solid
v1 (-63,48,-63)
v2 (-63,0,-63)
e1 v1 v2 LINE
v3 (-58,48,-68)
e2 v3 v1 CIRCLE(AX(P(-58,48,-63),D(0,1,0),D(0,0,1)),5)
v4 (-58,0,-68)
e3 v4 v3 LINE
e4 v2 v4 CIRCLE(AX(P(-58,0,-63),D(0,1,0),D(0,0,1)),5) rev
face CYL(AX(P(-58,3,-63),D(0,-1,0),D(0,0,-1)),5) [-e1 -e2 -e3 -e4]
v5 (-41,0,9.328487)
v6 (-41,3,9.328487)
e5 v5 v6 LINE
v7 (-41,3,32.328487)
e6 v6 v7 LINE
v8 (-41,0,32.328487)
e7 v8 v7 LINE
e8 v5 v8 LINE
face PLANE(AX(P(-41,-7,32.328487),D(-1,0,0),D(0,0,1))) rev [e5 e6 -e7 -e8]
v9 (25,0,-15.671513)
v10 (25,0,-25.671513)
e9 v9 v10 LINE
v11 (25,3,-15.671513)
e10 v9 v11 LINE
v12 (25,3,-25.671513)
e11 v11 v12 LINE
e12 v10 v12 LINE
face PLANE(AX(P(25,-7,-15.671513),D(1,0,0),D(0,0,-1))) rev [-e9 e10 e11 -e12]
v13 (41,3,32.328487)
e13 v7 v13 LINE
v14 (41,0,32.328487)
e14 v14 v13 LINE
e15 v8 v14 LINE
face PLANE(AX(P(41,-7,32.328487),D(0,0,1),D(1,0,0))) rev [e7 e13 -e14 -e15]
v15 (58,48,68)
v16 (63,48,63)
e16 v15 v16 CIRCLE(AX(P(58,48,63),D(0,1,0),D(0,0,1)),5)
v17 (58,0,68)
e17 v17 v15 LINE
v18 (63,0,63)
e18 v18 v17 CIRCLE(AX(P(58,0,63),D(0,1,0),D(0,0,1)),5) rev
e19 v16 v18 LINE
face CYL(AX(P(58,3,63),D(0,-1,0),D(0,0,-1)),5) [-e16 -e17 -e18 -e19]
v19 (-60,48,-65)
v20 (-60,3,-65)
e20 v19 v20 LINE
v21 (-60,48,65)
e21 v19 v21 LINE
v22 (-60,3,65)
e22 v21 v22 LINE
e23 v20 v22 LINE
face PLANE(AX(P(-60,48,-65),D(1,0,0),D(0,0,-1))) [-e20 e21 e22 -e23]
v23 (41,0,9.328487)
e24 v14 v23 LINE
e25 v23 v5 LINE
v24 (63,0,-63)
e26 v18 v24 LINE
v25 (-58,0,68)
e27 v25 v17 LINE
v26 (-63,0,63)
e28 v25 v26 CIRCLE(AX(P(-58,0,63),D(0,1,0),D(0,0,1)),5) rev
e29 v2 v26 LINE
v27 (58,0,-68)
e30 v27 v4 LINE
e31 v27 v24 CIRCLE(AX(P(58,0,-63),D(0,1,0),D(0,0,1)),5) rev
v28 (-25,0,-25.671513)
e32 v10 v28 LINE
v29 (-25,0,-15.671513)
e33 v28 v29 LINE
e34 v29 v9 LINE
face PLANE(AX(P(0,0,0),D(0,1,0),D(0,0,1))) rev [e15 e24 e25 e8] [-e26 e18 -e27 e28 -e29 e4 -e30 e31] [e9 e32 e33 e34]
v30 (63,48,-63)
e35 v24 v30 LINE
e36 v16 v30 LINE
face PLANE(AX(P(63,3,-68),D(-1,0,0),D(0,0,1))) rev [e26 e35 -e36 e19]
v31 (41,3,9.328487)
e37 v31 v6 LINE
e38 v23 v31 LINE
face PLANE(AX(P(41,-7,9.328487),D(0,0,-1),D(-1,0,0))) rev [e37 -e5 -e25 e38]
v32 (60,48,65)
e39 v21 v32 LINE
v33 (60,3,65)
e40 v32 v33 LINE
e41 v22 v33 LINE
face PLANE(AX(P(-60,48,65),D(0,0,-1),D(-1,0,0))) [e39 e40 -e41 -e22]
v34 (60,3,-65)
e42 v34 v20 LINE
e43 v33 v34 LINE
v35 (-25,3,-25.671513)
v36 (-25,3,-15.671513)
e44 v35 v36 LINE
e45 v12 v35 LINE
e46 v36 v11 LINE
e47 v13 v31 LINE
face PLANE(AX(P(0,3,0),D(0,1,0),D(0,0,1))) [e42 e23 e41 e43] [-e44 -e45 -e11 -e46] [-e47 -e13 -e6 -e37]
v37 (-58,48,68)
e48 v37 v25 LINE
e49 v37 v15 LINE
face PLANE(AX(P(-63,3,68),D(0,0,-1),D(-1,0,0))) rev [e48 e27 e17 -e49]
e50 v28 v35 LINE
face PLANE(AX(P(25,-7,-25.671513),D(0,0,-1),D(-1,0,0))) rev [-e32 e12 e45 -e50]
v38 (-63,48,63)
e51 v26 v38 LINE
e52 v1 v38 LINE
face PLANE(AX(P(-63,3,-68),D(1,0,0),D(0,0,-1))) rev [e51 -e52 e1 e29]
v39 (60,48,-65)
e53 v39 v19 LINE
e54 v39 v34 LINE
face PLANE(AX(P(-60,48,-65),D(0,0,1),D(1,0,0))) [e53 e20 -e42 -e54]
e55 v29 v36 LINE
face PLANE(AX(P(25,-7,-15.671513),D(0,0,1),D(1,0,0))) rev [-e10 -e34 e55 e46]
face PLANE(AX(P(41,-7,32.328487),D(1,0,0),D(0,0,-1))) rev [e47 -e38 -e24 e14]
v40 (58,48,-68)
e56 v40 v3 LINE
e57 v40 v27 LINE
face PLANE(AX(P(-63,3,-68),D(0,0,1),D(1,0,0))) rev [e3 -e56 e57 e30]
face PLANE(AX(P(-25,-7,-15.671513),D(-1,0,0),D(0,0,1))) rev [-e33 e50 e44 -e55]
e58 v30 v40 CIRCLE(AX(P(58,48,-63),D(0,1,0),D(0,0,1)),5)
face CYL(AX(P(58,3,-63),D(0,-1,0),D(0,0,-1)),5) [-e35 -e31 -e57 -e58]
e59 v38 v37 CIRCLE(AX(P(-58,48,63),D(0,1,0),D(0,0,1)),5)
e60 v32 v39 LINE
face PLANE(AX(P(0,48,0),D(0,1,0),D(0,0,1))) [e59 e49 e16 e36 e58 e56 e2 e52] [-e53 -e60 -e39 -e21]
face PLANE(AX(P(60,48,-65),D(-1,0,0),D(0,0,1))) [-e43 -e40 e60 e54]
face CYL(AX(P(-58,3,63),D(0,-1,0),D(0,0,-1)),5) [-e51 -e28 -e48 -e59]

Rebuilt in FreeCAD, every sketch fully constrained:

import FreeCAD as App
import Part
import Sketcher

V = App.Vector


def edges_at(feature, points):
    """Names of the edges that pass closest to the given points."""
    edges = feature.Shape.Edges
    near = lambda p: min(range(len(edges)), key=lambda i: edges[i].distToShape(Part.Vertex(*p))[0])
    return sorted({f"Edge{near(p) + 1}" for p in points})


def add_polygon(sketch, points):
    """Adds a closed chain of lines whose ends are joined by coincident constraints."""
    first, n = sketch.GeometryCount, len(points)
    for a, b in zip(points, points[1:] + points[:1]):
        sketch.addGeometry(Part.LineSegment(App.Vector(*a, 0), App.Vector(*b, 0)), False)
    for i in range(n):
        sketch.addConstraint(Sketcher.Constraint("Coincident", first + i, 2, first + (i + 1) % n, 1))

doc = App.newDocument("Part")
params = doc.addObject("Spreadsheet::Sheet", "Params")
for row, (alias, value) in enumerate([
    ("sketch1_width", "126 mm"),
    ("sketch1_height", "136 mm"),
    ("pad1_length", "3 mm"),
    ("sketch2_width", "126 mm"),
    ("sketch2_width2", "120 mm"),
    ("sketch2_height", "136 mm"),
    ("sketch2_height2", "130 mm"),
    ("pad2_length", "45 mm"),
    ("fillet_radius", "5 mm"),
    ("sketch3_width", "82 mm"),
    ("sketch3_width2", "50 mm"),
    ("sketch3_height", "23 mm"),
    ("sketch3_height2", "10 mm"),
    ("pocket1_length", "10 mm"),
], start=1):
    params.set(f"A{row}", alias)
    params.set(f"B{row}", "=" + value)
    params.setAlias(f"B{row}", alias)

body = doc.addObject("PartDesign::Body", "Body")

# Sketch on XZ plane
sketch1 = doc.addObject("Sketcher::SketchObject", "Sketch")
body.addObject(sketch1)
sketch1.AttachmentSupport = (doc.XZ_Plane, [""])
sketch1.MapMode = "FlatFace"
add_polygon(sketch1, [(-63, -68), (-63, 68), (63, 68), (63, -68)])  # lines 0-3
sketch1.addConstraint([
    Sketcher.Constraint("Vertical", 0),
    Sketcher.Constraint("Horizontal", 1),
    Sketcher.Constraint("Vertical", 2),
    Sketcher.Constraint("Horizontal", 3),
    Sketcher.Constraint("Symmetric", 0, 2, 2, 2, -1, 1),
    Sketcher.Constraint("DistanceX", 1, 1, 1, 2, 126.0),
    Sketcher.Constraint("DistanceY", 0, 1, 0, 2, 136.0),
])
sketch1.setExpression("Constraints[9]", "Params.sketch1_width")
sketch1.setExpression("Constraints[10]", "Params.sketch1_height")
pad1 = doc.addObject("PartDesign::Pad", "Pad")
body.addObject(pad1)
pad1.Profile = sketch1
pad1.setExpression("Length", "Params.pad1_length")
pad1.Reversed = True

# Sketch on XZ plane
sketch2 = doc.addObject("Sketcher::SketchObject", "Sketch001")
body.addObject(sketch2)
sketch2.AttachmentSupport = (doc.XZ_Plane, [""])
sketch2.MapMode = "FlatFace"
sketch2.AttachmentOffset = App.Placement(V(0, 0, -3), App.Rotation())
add_polygon(sketch2, [(-63, -68), (-63, 68), (63, 68), (63, -68)])  # lines 0-3
add_polygon(sketch2, [(60, 65), (-60, 65), (-60, -65), (60, -65)])  # lines 4-7
sketch2.addConstraint([
    Sketcher.Constraint("Vertical", 0),
    Sketcher.Constraint("Horizontal", 1),
    Sketcher.Constraint("Vertical", 2),
    Sketcher.Constraint("Horizontal", 3),
    Sketcher.Constraint("Horizontal", 4),
    Sketcher.Constraint("Vertical", 5),
    Sketcher.Constraint("Horizontal", 6),
    Sketcher.Constraint("Vertical", 7),
    Sketcher.Constraint("Symmetric", 0, 2, 2, 2, -1, 1),
    Sketcher.Constraint("Symmetric", 4, 2, 6, 2, -1, 1),
    Sketcher.Constraint("DistanceX", 1, 1, 1, 2, 126.0),
    Sketcher.Constraint("DistanceX", 4, 2, 4, 1, 120.0),
    Sketcher.Constraint("DistanceY", 0, 1, 0, 2, 136.0),
    Sketcher.Constraint("DistanceY", 5, 2, 5, 1, 130.0),
])
sketch2.setExpression("Constraints[18]", "Params.sketch2_width")
sketch2.setExpression("Constraints[19]", "Params.sketch2_width2")
sketch2.setExpression("Constraints[20]", "Params.sketch2_height")
sketch2.setExpression("Constraints[21]", "Params.sketch2_height2")
pad2 = doc.addObject("PartDesign::Pad", "Pad001")
body.addObject(pad2)
pad2.Profile = sketch2
pad2.setExpression("Length", "Params.pad2_length")
pad2.Reversed = True
doc.recompute()

fillet = doc.addObject("PartDesign::Fillet", "Fillet")
body.addObject(fillet)
fillet.Base = (pad2, edges_at(pad2, [
    (63, 24, 68),
    (-63, 24, 68),
    (-63, 24, -68),
    (63, 24, -68),
]))
fillet.setExpression("Radius", "Params.fillet_radius")

# Sketch on XZ plane
sketch3 = doc.addObject("Sketcher::SketchObject", "Sketch002")
body.addObject(sketch3)
sketch3.AttachmentSupport = (doc.XZ_Plane, [""])
sketch3.MapMode = "FlatFace"
sketch3.AttachmentOffset = App.Placement(V(0, 0, -3), App.Rotation())
add_polygon(sketch3, [(-41, 9), (-41, 32), (41, 32), (41, 9)])  # lines 0-3
add_polygon(sketch3, [(-25, -26), (-25, -16), (25, -16), (25, -26)])  # lines 4-7
sketch3.addConstraint([
    Sketcher.Constraint("Vertical", 0),
    Sketcher.Constraint("Horizontal", 1),
    Sketcher.Constraint("Vertical", 2),
    Sketcher.Constraint("Horizontal", 3),
    Sketcher.Constraint("Vertical", 4),
    Sketcher.Constraint("Horizontal", 5),
    Sketcher.Constraint("Vertical", 6),
    Sketcher.Constraint("Horizontal", 7),
    Sketcher.Constraint("DistanceX", 1, 1, 1, 2, 82.0),
    Sketcher.Constraint("DistanceX", 5, 1, 5, 2, 50.0),
    Sketcher.Constraint("DistanceY", 0, 1, 0, 2, 23.0),
    Sketcher.Constraint("DistanceY", 4, 1, 4, 2, 10.0),
    Sketcher.Constraint("DistanceX", 0, 2, -1, 1, 41.0),
    Sketcher.Constraint("DistanceX", 4, 2, -1, 1, 25.0),
    Sketcher.Constraint("DistanceY", 4, 2, 3, 2, 25.0),
    Sketcher.Constraint("DistanceY", -1, 1, 0, 2, 32.328487),
])
sketch3.setExpression("Constraints[16]", "Params.sketch3_width")
sketch3.setExpression("Constraints[17]", "Params.sketch3_width2")
sketch3.setExpression("Constraints[18]", "Params.sketch3_height")
sketch3.setExpression("Constraints[19]", "Params.sketch3_height2")
pocket1 = doc.addObject("PartDesign::Pocket", "Pocket")
body.addObject(pocket1)
pocket1.Profile = sketch3
pocket1.setExpression("Length", "Params.pocket1_length")
pocket1.Reversed = True

doc.recompute()
